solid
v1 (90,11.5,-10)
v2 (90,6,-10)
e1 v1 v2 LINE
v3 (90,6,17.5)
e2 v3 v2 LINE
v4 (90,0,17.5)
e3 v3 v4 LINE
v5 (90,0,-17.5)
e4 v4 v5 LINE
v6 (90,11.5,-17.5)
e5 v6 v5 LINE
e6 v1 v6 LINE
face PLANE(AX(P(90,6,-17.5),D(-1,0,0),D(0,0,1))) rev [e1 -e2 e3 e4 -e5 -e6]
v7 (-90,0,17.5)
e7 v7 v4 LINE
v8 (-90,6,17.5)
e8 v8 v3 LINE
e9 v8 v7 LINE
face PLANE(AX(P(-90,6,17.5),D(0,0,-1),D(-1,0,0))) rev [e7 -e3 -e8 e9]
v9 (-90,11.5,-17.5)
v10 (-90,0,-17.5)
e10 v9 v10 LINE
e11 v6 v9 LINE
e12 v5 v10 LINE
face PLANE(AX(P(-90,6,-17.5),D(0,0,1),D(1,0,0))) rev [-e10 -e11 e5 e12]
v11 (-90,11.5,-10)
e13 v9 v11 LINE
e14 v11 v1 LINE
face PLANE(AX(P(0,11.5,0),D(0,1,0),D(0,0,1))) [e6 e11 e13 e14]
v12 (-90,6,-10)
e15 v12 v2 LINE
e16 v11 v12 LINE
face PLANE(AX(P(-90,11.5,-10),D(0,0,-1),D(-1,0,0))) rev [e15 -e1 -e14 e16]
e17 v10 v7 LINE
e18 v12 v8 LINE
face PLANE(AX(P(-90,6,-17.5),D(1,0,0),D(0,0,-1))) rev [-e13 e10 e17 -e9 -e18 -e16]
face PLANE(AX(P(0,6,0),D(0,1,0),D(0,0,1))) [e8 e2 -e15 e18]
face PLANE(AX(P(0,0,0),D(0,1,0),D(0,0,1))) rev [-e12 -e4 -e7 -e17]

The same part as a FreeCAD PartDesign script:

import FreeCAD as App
import Part
import Sketcher
from FreeCAD import Vector
Q = App.Units.Quantity

doc = App.newDocument("Part")
body = doc.addObject("PartDesign::Body", "Body")

# Sketch on XZ plane
sketch1 = body.newObject("Sketcher::SketchObject", "Sketch")
sketch1.AttachmentSupport = (doc.getObject("XZ_Plane"), [""])
sketch1.MapMode = "FlatFace"
sketch1.addGeometry([
    Part.LineSegment(Vector(-90, -17.5, 0), Vector(-90, 17.5, 0)),
    Part.LineSegment(Vector(-90, 17.5, 0), Vector(90, 17.5, 0)),
    Part.LineSegment(Vector(90, 17.5, 0), Vector(90, -17.5, 0)),
    Part.LineSegment(Vector(90, -17.5, 0), Vector(-90, -17.5, 0)),
], False)
sketch1.addConstraint([
    Sketcher.Constraint("Coincident", 0, 2, 1, 1),
    Sketcher.Constraint("Coincident", 1, 2, 2, 1),
    Sketcher.Constraint("Coincident", 2, 2, 3, 1),
    Sketcher.Constraint("Coincident", 3, 2, 0, 1),
    Sketcher.Constraint("Vertical", 0),
    Sketcher.Constraint("Horizontal", 1),
    Sketcher.Constraint("Vertical", 2),
    Sketcher.Constraint("Horizontal", 3),
    Sketcher.Constraint("Symmetric", 0, 2, 2, 2, -1, 1),
    Sketcher.Constraint("DistanceX", 1, 1, 1, 2, Q("180 mm")),
    Sketcher.Constraint("DistanceY", 0, 1, 0, 2, Q("35 mm")),
])
pad1 = body.newObject("PartDesign::Pad", "Pad")
pad1.Profile = sketch1
pad1.Length = 6
pad1.Reversed = True

# Sketch on XZ plane
sketch2 = body.newObject("Sketcher::SketchObject", "Sketch001")
sketch2.AttachmentSupport = (doc.getObject("XZ_Plane"), [""])
sketch2.MapMode = "FlatFace"
sketch2.AttachmentOffset = App.Placement(Vector(0, 0, -6), App.Rotation())
sketch2.addGeometry([
    Part.LineSegment(Vector(-90, -17.5, 0), Vector(-90, -10, 0)),
    Part.LineSegment(Vector(-90, -10, 0), Vector(90, -10, 0)),
    Part.LineSegment(Vector(90, -10, 0), Vector(90, -17.5, 0)),
    Part.LineSegment(Vector(90, -17.5, 0), Vector(-90, -17.5, 0)),
], False)
sketch2.addConstraint([
    Sketcher.Constraint("Coincident", 0, 2, 1, 1),
    Sketcher.Constraint("Coincident", 1, 2, 2, 1),
    Sketcher.Constraint("Coincident", 2, 2, 3, 1),
    Sketcher.Constraint("Coincident", 3, 2, 0, 1),
    Sketcher.Constraint("Vertical", 0),
    Sketcher.Constraint("Horizontal", 1),
    Sketcher.Constraint("Vertical", 2),
    Sketcher.Constraint("Horizontal", 3),
    Sketcher.Constraint("DistanceX", 1, 1, 1, 2, Q("180 mm")),
    Sketcher.Constraint("DistanceY", 0, 1, 0, 2, Q("7.5 mm")),
    Sketcher.Constraint("DistanceX", 0, 2, -1, 1, Q("90 mm")),
    Sketcher.Constraint("DistanceY", 0, 2, -1, 1, Q("10 mm")),
])
pad2 = body.newObject("PartDesign::Pad", "Pad001")
pad2.Profile = sketch2
pad2.Length = 5.5
pad2.Reversed = True

doc.recompute()
